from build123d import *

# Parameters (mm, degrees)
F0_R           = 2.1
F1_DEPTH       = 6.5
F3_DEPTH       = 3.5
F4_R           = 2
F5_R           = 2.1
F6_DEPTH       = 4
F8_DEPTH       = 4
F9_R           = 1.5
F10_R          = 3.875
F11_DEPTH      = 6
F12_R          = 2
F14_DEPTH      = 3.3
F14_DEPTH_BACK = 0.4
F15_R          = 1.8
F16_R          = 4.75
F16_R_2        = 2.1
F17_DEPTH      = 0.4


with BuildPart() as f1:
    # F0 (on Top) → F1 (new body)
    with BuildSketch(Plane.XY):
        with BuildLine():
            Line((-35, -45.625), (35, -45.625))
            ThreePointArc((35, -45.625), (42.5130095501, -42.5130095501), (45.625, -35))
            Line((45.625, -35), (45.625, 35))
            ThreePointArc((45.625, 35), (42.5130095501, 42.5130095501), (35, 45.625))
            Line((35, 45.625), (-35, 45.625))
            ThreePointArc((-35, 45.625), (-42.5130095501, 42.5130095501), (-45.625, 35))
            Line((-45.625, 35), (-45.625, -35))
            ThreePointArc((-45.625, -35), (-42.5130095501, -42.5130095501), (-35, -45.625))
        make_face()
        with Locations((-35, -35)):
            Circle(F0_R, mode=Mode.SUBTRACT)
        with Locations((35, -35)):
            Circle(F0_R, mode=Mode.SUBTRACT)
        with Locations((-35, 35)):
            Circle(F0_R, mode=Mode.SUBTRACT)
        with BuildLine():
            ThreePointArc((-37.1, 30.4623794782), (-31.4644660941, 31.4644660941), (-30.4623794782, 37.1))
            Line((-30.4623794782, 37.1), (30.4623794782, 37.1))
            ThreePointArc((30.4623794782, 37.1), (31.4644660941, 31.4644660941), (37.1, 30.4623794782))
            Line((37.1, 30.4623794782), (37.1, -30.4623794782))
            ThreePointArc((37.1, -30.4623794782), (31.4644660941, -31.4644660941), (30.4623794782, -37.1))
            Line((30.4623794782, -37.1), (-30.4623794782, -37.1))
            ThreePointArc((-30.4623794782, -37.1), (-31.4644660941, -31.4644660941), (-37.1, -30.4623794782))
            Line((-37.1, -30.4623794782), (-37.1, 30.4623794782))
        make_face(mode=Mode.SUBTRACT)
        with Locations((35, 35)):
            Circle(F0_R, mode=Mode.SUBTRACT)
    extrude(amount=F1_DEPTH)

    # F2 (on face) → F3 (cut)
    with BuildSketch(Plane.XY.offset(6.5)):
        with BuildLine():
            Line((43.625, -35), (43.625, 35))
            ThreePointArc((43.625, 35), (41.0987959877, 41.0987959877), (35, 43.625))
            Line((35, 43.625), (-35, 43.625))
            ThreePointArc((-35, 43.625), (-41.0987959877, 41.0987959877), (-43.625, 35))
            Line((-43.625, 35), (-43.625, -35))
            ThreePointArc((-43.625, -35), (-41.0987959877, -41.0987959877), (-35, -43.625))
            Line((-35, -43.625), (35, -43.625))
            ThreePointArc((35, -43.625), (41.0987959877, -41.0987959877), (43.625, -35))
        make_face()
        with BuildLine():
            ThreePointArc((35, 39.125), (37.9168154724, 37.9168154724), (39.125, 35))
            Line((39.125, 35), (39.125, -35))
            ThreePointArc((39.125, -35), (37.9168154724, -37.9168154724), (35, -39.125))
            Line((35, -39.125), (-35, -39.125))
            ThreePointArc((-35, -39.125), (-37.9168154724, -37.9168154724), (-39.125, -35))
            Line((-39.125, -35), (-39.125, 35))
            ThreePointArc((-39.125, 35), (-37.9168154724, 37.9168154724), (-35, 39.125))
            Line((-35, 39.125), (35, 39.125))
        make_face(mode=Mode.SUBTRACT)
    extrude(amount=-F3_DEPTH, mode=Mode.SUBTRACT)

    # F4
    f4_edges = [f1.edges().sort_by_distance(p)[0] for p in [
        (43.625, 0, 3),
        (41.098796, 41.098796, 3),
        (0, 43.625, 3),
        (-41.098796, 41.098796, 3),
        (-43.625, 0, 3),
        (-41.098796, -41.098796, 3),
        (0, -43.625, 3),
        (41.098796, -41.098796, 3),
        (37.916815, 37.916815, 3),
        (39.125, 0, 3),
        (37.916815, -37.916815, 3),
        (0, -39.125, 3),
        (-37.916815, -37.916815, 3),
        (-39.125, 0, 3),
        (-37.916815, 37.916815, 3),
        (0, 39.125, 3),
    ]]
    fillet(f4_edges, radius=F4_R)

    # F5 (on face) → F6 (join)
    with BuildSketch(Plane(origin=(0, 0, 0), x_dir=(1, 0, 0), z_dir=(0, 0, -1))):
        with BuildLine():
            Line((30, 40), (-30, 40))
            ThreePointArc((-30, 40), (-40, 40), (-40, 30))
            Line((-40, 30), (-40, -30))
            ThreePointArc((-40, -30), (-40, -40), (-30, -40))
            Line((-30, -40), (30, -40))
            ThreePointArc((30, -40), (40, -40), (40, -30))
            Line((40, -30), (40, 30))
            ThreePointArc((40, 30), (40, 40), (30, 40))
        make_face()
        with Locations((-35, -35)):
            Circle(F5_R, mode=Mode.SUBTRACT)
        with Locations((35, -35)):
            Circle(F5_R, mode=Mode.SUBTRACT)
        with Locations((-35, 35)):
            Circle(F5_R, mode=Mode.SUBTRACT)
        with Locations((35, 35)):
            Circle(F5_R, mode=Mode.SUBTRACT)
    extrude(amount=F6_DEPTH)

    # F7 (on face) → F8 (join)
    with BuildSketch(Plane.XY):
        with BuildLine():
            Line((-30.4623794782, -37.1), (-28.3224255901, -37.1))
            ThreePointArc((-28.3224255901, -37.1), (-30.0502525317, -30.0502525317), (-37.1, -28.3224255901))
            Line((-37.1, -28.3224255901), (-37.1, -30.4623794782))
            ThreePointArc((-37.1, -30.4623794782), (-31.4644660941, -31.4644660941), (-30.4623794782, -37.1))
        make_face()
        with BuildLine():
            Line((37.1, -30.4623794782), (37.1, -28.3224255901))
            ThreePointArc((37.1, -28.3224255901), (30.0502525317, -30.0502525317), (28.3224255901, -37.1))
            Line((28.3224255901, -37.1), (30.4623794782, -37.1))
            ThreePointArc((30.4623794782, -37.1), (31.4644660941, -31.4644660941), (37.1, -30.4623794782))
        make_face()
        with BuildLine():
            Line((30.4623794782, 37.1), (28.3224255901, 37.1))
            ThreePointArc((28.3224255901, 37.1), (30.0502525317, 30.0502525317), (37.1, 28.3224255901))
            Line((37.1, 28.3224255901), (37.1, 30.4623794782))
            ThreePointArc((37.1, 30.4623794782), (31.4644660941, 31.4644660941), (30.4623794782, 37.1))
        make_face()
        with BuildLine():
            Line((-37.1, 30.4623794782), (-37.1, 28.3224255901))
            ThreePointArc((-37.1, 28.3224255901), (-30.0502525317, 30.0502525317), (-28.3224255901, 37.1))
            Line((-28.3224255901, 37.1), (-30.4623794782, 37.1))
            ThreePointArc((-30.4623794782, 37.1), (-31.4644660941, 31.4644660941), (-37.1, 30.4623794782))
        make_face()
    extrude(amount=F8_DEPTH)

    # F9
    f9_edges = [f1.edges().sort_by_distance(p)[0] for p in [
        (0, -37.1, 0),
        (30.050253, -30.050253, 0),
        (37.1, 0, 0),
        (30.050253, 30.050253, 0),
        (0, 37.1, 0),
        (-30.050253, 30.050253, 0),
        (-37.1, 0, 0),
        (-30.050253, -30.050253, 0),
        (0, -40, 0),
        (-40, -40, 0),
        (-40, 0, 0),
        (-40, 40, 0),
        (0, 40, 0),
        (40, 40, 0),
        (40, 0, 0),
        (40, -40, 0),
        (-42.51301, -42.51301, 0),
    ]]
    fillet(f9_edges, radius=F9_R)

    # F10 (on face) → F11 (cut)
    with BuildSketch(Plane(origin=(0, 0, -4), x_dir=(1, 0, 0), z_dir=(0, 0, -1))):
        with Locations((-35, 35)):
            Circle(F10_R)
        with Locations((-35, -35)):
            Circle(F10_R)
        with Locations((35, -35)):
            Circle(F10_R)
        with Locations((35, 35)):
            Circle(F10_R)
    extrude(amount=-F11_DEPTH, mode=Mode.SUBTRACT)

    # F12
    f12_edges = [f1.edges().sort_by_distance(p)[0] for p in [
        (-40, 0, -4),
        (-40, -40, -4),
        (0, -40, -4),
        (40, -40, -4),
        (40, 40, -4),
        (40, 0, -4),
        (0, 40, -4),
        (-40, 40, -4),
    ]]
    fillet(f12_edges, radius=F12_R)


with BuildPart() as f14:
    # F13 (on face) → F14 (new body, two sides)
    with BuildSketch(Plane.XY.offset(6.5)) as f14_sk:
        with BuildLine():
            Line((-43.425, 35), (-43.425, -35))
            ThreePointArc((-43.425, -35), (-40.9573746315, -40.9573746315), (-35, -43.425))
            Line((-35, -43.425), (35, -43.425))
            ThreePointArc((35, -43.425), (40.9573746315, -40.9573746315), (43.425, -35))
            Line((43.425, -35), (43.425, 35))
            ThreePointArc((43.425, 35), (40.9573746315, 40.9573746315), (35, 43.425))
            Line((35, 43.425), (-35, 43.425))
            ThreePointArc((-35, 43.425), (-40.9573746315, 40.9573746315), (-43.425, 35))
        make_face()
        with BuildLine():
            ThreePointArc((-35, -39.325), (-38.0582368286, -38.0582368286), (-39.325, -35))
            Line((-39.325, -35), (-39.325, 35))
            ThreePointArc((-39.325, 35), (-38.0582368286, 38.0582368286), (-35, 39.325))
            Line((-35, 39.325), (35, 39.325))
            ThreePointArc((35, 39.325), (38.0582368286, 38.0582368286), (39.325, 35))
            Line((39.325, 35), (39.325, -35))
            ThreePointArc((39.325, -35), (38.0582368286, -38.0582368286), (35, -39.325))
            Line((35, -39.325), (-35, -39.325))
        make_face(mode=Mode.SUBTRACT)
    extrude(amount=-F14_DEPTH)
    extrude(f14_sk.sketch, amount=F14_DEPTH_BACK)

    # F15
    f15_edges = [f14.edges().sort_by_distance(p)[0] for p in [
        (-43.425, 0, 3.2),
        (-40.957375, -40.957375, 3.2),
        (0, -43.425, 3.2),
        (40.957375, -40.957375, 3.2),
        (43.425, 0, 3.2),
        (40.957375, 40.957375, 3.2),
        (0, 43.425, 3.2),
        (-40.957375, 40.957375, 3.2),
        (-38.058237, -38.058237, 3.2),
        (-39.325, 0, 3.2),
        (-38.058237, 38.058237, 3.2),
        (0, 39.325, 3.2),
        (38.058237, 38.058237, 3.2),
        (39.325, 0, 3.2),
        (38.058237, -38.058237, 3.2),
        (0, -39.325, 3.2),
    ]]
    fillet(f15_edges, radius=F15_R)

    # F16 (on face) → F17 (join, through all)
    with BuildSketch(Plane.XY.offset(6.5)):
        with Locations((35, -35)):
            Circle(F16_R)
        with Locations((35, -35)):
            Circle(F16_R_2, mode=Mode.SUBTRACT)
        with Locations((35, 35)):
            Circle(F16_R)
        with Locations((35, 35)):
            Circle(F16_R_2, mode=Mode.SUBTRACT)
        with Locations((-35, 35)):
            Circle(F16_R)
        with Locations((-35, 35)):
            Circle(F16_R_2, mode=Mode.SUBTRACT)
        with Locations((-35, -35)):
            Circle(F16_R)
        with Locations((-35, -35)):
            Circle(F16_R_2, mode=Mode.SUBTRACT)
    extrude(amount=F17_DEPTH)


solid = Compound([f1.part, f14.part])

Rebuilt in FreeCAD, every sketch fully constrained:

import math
import FreeCAD as App
import Part
import Sketcher
from FreeCAD import Vector


def edges_at(feature, points):
    """Names of the edges that pass closest to the given points."""
    edges = feature.Shape.Edges
    near = lambda p: min(range(len(edges)), key=lambda i: edges[i].distToShape(Part.Vertex(*p))[0])
    return sorted({f"Edge{near(p) + 1}" for p in points})

doc = App.newDocument("Part")
body = doc.addObject("PartDesign::Body", "Body")

sketch1 = doc.addObject("Sketcher::SketchObject", "Sketch")
body.addObject(sketch1)
sketch1.AttachmentSupport = (doc.XY_Plane, [""])
sketch1.MapMode = "FlatFace"
sketch1.addGeometry([
    Part.LineSegment(Vector(-35, -45.6, 0), Vector(35, -45.6, 0)),
    Part.ArcOfCircle(Part.Circle(Vector(35, -35, 0), Vector(0, 0, 1), 10.6), math.radians(-90), math.radians(0)),
    Part.LineSegment(Vector(45.6, -35, 0), Vector(45.6, 35, 0)),
    Part.ArcOfCircle(Part.Circle(Vector(35, 35, 0), Vector(0, 0, 1), 10.6), math.radians(0), math.radians(90)),
    Part.LineSegment(Vector(35, 45.6, 0), Vector(-35, 45.6, 0)),
    Part.ArcOfCircle(Part.Circle(Vector(-35, 35, 0), Vector(0, 0, 1), 10.6), math.radians(90), math.radians(180)),
    Part.LineSegment(Vector(-45.6, 35, 0), Vector(-45.6, -35, 0)),
    Part.ArcOfCircle(Part.Circle(Vector(-35, -35, 0), Vector(0, 0, 1), 10.6), math.radians(180), math.radians(270)),
    Part.Circle(Vector(-35, -35, 0), Vector(0, 0, 1), 2.1),
    Part.Circle(Vector(35, -35, 0), Vector(0, 0, 1), 2.1),
    Part.Circle(Vector(-35, 35, 0), Vector(0, 0, 1), 2.1),
    Part.LineSegment(Vector(-37.1, -30.5, 0), Vector(-37.1, 30.5, 0)),
    Part.ArcOfCircle(Part.Circle(Vector(-35, 35, 0), Vector(0, 0, 1), 5), math.radians(-115), math.radians(25)),
    Part.LineSegment(Vector(-30.5, 37.1, 0), Vector(30.5, 37.1, 0)),
    Part.ArcOfCircle(Part.Circle(Vector(35, 35, 0), Vector(0, 0, 1), 5), math.radians(155), math.radians(295)),
    Part.LineSegment(Vector(37.1, 30.5, 0), Vector(37.1, -30.5, 0)),
    Part.ArcOfCircle(Part.Circle(Vector(35, -35, 0), Vector(0, 0, 1), 5), math.radians(65), math.radians(205)),
    Part.LineSegment(Vector(30.5, -37.1, 0), Vector(-30.5, -37.1, 0)),
    Part.ArcOfCircle(Part.Circle(Vector(-35, -35, 0), Vector(0, 0, 1), 5), math.radians(-25), math.radians(115)),
    Part.Circle(Vector(35, 35, 0), Vector(0, 0, 1), 2.1),
], False)
sketch1.addConstraint([
    Sketcher.Constraint("Tangent", 0, 2, 1, 1),
    Sketcher.Constraint("Tangent", 1, 2, 2, 1),
    Sketcher.Constraint("Tangent", 2, 2, 3, 1),
    Sketcher.Constraint("Tangent", 3, 2, 4, 1),
    Sketcher.Constraint("Tangent", 4, 2, 5, 1),
    Sketcher.Constraint("Tangent", 5, 2, 6, 1),
    Sketcher.Constraint("Tangent", 6, 2, 7, 1),
    Sketcher.Constraint("Tangent", 7, 2, 0, 1),
    Sketcher.Constraint("Coincident", 11, 2, 12, 1),
    Sketcher.Constraint("Coincident", 12, 2, 13, 1),
    Sketcher.Constraint("Coincident", 13, 2, 14, 1),
    Sketcher.Constraint("Coincident", 14, 2, 15, 1),
    Sketcher.Constraint("Coincident", 15, 2, 16, 1),
    Sketcher.Constraint("Coincident", 16, 2, 17, 1),
    Sketcher.Constraint("Coincident", 17, 2, 18, 1),
    Sketcher.Constraint("Coincident", 18, 2, 11, 1),
    Sketcher.Constraint("Horizontal", 0),
    Sketcher.Constraint("Vertical", 2),
    Sketcher.Constraint("Horizontal", 4),
    Sketcher.Constraint("Vertical", 6),
    Sketcher.Constraint("Vertical", 11),
    Sketcher.Constraint("Horizontal", 13),
    Sketcher.Constraint("Vertical", 15),
    Sketcher.Constraint("Horizontal", 17),
    Sketcher.Constraint("Coincident", 8, 3, 7, 3),
    Sketcher.Constraint("Coincident", 9, 3, 1, 3),
    Sketcher.Constraint("Coincident", 10, 3, 5, 3),
    Sketcher.Constraint("Coincident", 12, 3, 5, 3),
    Sketcher.Constraint("Coincident", 14, 3, 3, 3),
    Sketcher.Constraint("Coincident", 16, 3, 1, 3),
    Sketcher.Constraint("Coincident", 18, 3, 7, 3),
    Sketcher.Constraint("Coincident", 19, 3, 3, 3),
    Sketcher.Constraint("Equal", 1, 3),
    Sketcher.Constraint("Equal", 3, 5),
    Sketcher.Constraint("Equal", 5, 7),
    Sketcher.Constraint("Equal", 8, 9),
    Sketcher.Constraint("Equal", 9, 10),
    Sketcher.Constraint("Equal", 12, 14),
    Sketcher.Constraint("Equal", 14, 16),
    Sketcher.Constraint("Equal", 16, 18),
    Sketcher.Constraint("Equal", 10, 19),
    Sketcher.Constraint("Symmetric", 1, 3, 5, 3, -1, 1),
    Sketcher.Constraint("Horizontal", 11, 2, 14, 2),
    Sketcher.Constraint("Vertical", 13, 2, 16, 2),
    Sketcher.Constraint("Equal", 4, 2),
    Sketcher.Constraint("Equal", 17, 11),
    Sketcher.Constraint("Radius", 12, 5.0),
    Sketcher.Constraint("Diameter", 8, 4.2),
    Sketcher.Constraint("DistanceX", 0, 1, 0, 2, 70.0),
    Sketcher.Constraint("Radius", 1, 10.625),
    Sketcher.Constraint("DistanceX", 11, 2, -1, 1, 37.1),
])
pad1 = doc.addObject("PartDesign::Pad", "Pad")
body.addObject(pad1)
pad1.Profile = sketch1
pad1.Length = 6.5

sketch2 = doc.addObject("Sketcher::SketchObject", "Sketch001")
body.addObject(sketch2)
sketch2.AttachmentSupport = (doc.XY_Plane, [""])
sketch2.MapMode = "FlatFace"
sketch2.AttachmentOffset = App.Placement(Vector(0, 0, 6.5), App.Rotation())
sketch2.addGeometry([
    Part.LineSegment(Vector(43.6, -35, 0), Vector(43.6, 35, 0)),
    Part.ArcOfCircle(Part.Circle(Vector(35, 35, 0), Vector(0, 0, 1), 8.6), math.radians(0), math.radians(90)),
    Part.LineSegment(Vector(35, 43.6, 0), Vector(-35, 43.6, 0)),
    Part.ArcOfCircle(Part.Circle(Vector(-35, 35, 0), Vector(0, 0, 1), 8.6), math.radians(90), math.radians(180)),
    Part.LineSegment(Vector(-43.6, 35, 0), Vector(-43.6, -35, 0)),
    Part.ArcOfCircle(Part.Circle(Vector(-35, -35, 0), Vector(0, 0, 1), 8.6), math.radians(180), math.radians(270)),
    Part.LineSegment(Vector(-35, -43.6, 0), Vector(35, -43.6, 0)),
    Part.ArcOfCircle(Part.Circle(Vector(35, -35, 0), Vector(0, 0, 1), 8.6), math.radians(-90), math.radians(0)),
    Part.LineSegment(Vector(-35, 39.1, 0), Vector(35, 39.1, 0)),
    Part.ArcOfCircle(Part.Circle(Vector(35, 35, 0), Vector(0, 0, 1), 4.1), math.radians(0), math.radians(90)),
    Part.LineSegment(Vector(39.1, 35, 0), Vector(39.1, -35, 0)),
    Part.ArcOfCircle(Part.Circle(Vector(35, -35, 0), Vector(0, 0, 1), 4.1), math.radians(-90), math.radians(0)),
    Part.LineSegment(Vector(35, -39.1, 0), Vector(-35, -39.1, 0)),
    Part.ArcOfCircle(Part.Circle(Vector(-35, -35, 0), Vector(0, 0, 1), 4.1), math.radians(180), math.radians(270)),
    Part.LineSegment(Vector(-39.1, -35, 0), Vector(-39.1, 35, 0)),
    Part.ArcOfCircle(Part.Circle(Vector(-35, 35, 0), Vector(0, 0, 1), 4.1), math.radians(90), math.radians(180)),
], False)
sketch2.addConstraint([
    Sketcher.Constraint("Tangent", 0, 2, 1, 1),
    Sketcher.Constraint("Tangent", 1, 2, 2, 1),
    Sketcher.Constraint("Tangent", 2, 2, 3, 1),
    Sketcher.Constraint("Tangent", 3, 2, 4, 1),
    Sketcher.Constraint("Tangent", 4, 2, 5, 1),
    Sketcher.Constraint("Tangent", 5, 2, 6, 1),
    Sketcher.Constraint("Tangent", 6, 2, 7, 1),
    Sketcher.Constraint("Tangent", 7, 2, 0, 1),
    Sketcher.Constraint("Tangent", 8, 2, 9, 2),
    Sketcher.Constraint("Tangent", 9, 1, 10, 1),
    Sketcher.Constraint("Tangent", 10, 2, 11, 2),
    Sketcher.Constraint("Tangent", 11, 1, 12, 1),
    Sketcher.Constraint("Tangent", 12, 2, 13, 2),
    Sketcher.Constraint("Tangent", 13, 1, 14, 1),
    Sketcher.Constraint("Tangent", 14, 2, 15, 2),
    Sketcher.Constraint("Tangent", 15, 1, 8, 1),
    Sketcher.Constraint("Vertical", 0),
    Sketcher.Constraint("Horizontal", 2),
    Sketcher.Constraint("Vertical", 4),
    Sketcher.Constraint("Horizontal", 6),
    Sketcher.Constraint("Horizontal", 8),
    Sketcher.Constraint("Vertical", 10),
    Sketcher.Constraint("Horizontal", 12),
    Sketcher.Constraint("Vertical", 14),
    Sketcher.Constraint("Coincident", 9, 3, 1, 3),
    Sketcher.Constraint("Coincident", 11, 3, 7, 3),
    Sketcher.Constraint("Coincident", 13, 3, 5, 3),
    Sketcher.Constraint("Equal", 1, 3),
    Sketcher.Constraint("Equal", 3, 5),
    Sketcher.Constraint("Equal", 5, 7),
    Sketcher.Constraint("Equal", 13, 15),
    Sketcher.Constraint("Symmetric", 1, 3, 5, 3, -1, 1),
    Sketcher.Constraint("Equal", 12, 0),
    Sketcher.Constraint("DistanceX", 2, 2, 2, 1, 70.0),
    Sketcher.Constraint("Radius", 1, 8.625),
    Sketcher.Constraint("Radius", 9, 4.125),
])
pocket1 = doc.addObject("PartDesign::Pocket", "Pocket")
body.addObject(pocket1)
pocket1.Profile = sketch2
pocket1.Length = 3.5
doc.recompute()

fillet = doc.addObject("PartDesign::Fillet", "Fillet")
body.addObject(fillet)
fillet.Base = (pocket1, edges_at(pocket1, [
    (43.625, 0, 3),
    (41.099, 41.099, 3),
    (0, 43.625, 3),
    (-41.099, 41.099, 3),
    (-43.625, 0, 3),
    (-41.099, -41.099, 3),
    (0, -43.625, 3),
    (41.099, -41.099, 3),
    (37.917, 37.917, 3),
    (39.125, 0, 3),
    (37.917, -37.917, 3),
    (0, -39.125, 3),
    (-37.917, -37.917, 3),
    (-39.125, 0, 3),
    (-37.917, 37.917, 3),
    (0, 39.125, 3),
]))
fillet.Radius = 2

sketch3 = doc.addObject("Sketcher::SketchObject", "Sketch002")
body.addObject(sketch3)
sketch3.AttachmentSupport = (doc.XY_Plane, [""])
sketch3.MapMode = "FlatFace"
sketch3.addGeometry([
    Part.LineSegment(Vector(30, -40, 0), Vector(-30, -40, 0)),
    Part.ArcOfCircle(Part.Circle(Vector(-35, -35, 0), Vector(0, 0, 1), 7.1), math.radians(135), math.radians(315)),
    Part.LineSegment(Vector(-40, -30, 0), Vector(-40, 30, 0)),
    Part.ArcOfCircle(Part.Circle(Vector(-35, 35, 0), Vector(0, 0, 1), 7.1), math.radians(45), math.radians(225)),
    Part.LineSegment(Vector(-30, 40, 0), Vector(30, 40, 0)),
    Part.ArcOfCircle(Part.Circle(Vector(35, 35, 0), Vector(0, 0, 1), 7.1), math.radians(-45), math.radians(135)),
    Part.LineSegment(Vector(40, 30, 0), Vector(40, -30, 0)),
    Part.ArcOfCircle(Part.Circle(Vector(35, -35, 0), Vector(0, 0, 1), 7.1), math.radians(-135), math.radians(45)),
    Part.Circle(Vector(-35, 35, 0), Vector(0, 0, 1), 2.1),
    Part.Circle(Vector(35, 35, 0), Vector(0, 0, 1), 2.1),
    Part.Circle(Vector(-35, -35, 0), Vector(0, 0, 1), 2.1),
    Part.Circle(Vector(35, -35, 0), Vector(0, 0, 1), 2.1),
], False)
sketch3.addConstraint([
    Sketcher.Constraint("Coincident", 0, 2, 1, 2),
    Sketcher.Constraint("Coincident", 1, 1, 2, 1),
    Sketcher.Constraint("Coincident", 2, 2, 3, 2),
    Sketcher.Constraint("Coincident", 3, 1, 4, 1),
    Sketcher.Constraint("Coincident", 4, 2, 5, 2),
    Sketcher.Constraint("Coincident", 5, 1, 6, 1),
    Sketcher.Constraint("Coincident", 6, 2, 7, 2),
    Sketcher.Constraint("Coincident", 7, 1, 0, 1),
    Sketcher.Constraint("Horizontal", 0),
    Sketcher.Constraint("Vertical", 2),
    Sketcher.Constraint("Horizontal", 4),
    Sketcher.Constraint("Vertical", 6),
    Sketcher.Constraint("Coincident", 8, 3, 3, 3),
    Sketcher.Constraint("Coincident", 9, 3, 5, 3),
    Sketcher.Constraint("Coincident", 10, 3, 1, 3),
    Sketcher.Constraint("Coincident", 11, 3, 7, 3),
    Sketcher.Constraint("Equal", 1, 3),
    Sketcher.Constraint("Equal", 3, 5),
    Sketcher.Constraint("Equal", 5, 7),
    Sketcher.Constraint("Equal", 8, 9),
    Sketcher.Constraint("Equal", 9, 10),
    Sketcher.Constraint("Equal", 10, 11),
    Sketcher.Constraint("Symmetric", 1, 3, 5, 3, -1, 1),
    Sketcher.Constraint("Symmetric", 3, 3, 7, 3, -1, 1),
    Sketcher.Constraint("Symmetric", 3, 3, 5, 3, -2),
    Sketcher.Constraint("Horizontal", 2, 2, 5, 1),
    Sketcher.Constraint("Vertical", 0, 2, 3, 1),
    Sketcher.Constraint("Equal", 4, 2),
    Sketcher.Constraint("Diameter", 8, 4.2),
    Sketcher.Constraint("DistanceX", 0, 2, 0, 1, 60.0),
    Sketcher.Constraint("DistanceX", 1, 3, -1, 1, 35.0),
    Sketcher.Constraint("DistanceY", 1, 3, -1, 1, 35.0),
    Sketcher.Constraint("DistanceY", 0, 2, -1, 1, 40.0),
])
pad2 = doc.addObject("PartDesign::Pad", "Pad001")
body.addObject(pad2)
pad2.Profile = sketch3
pad2.Length = 4
pad2.Reversed = True

sketch4 = doc.addObject("Sketcher::SketchObject", "Sketch003")
body.addObject(sketch4)
sketch4.AttachmentSupport = (doc.XY_Plane, [""])
sketch4.MapMode = "FlatFace"
sketch4.addGeometry([
    Part.LineSegment(Vector(-30.5, -37.1, 0), Vector(-28.3, -37.1, 0)),
    Part.ArcOfCircle(Part.Circle(Vector(-35, -35, 0), Vector(0, 0, 1), 7), math.radians(-17), math.radians(107)),
    Part.LineSegment(Vector(-37.1, -28.3, 0), Vector(-37.1, -30.5, 0)),
    Part.ArcOfCircle(Part.Circle(Vector(-35, -35, 0), Vector(0, 0, 1), 5), math.radians(-25), math.radians(115)),
    Part.LineSegment(Vector(37.1, -30.5, 0), Vector(37.1, -28.3, 0)),
    Part.ArcOfCircle(Part.Circle(Vector(35, -35, 0), Vector(0, 0, 1), 7), math.radians(73), math.radians(197)),
    Part.LineSegment(Vector(28.3, -37.1, 0), Vector(30.5, -37.1, 0)),
    Part.ArcOfCircle(Part.Circle(Vector(35, -35, 0), Vector(0, 0, 1), 5), math.radians(65), math.radians(205)),
    Part.LineSegment(Vector(30.5, 37.1, 0), Vector(28.3, 37.1, 0)),
    Part.ArcOfCircle(Part.Circle(Vector(35, 35, 0), Vector(0, 0, 1), 7), math.radians(163), math.radians(287)),
    Part.LineSegment(Vector(37.1, 28.3, 0), Vector(37.1, 30.5, 0)),
    Part.ArcOfCircle(Part.Circle(Vector(35, 35, 0), Vector(0, 0, 1), 5), math.radians(155), math.radians(295)),
    Part.LineSegment(Vector(-37.1, 30.5, 0), Vector(-37.1, 28.3, 0)),
    Part.ArcOfCircle(Part.Circle(Vector(-35, 35, 0), Vector(0, 0, 1), 7), math.radians(-107), math.radians(17)),
    Part.LineSegment(Vector(-28.3, 37.1, 0), Vector(-30.5, 37.1, 0)),
    Part.ArcOfCircle(Part.Circle(Vector(-35, 35, 0), Vector(0, 0, 1), 5), math.radians(-115), math.radians(25)),
], False)
sketch4.addConstraint([
    Sketcher.Constraint("Coincident", 0, 2, 1, 1),
    Sketcher.Constraint("Coincident", 1, 2, 2, 1),
    Sketcher.Constraint("Coincident", 2, 2, 3, 2),
    Sketcher.Constraint("Coincident", 3, 1, 0, 1),
    Sketcher.Constraint("Coincident", 4, 2, 5, 1),
    Sketcher.Constraint("Coincident", 5, 2, 6, 1),
    Sketcher.Constraint("Coincident", 6, 2, 7, 2),
    Sketcher.Constraint("Coincident", 7, 1, 4, 1),
    Sketcher.Constraint("Coincident", 8, 2, 9, 1),
    Sketcher.Constraint("Coincident", 9, 2, 10, 1),
    Sketcher.Constraint("Coincident", 10, 2, 11, 2),
    Sketcher.Constraint("Coincident", 11, 1, 8, 1),
    Sketcher.Constraint("Coincident", 12, 2, 13, 1),
    Sketcher.Constraint("Coincident", 13, 2, 14, 1),
    Sketcher.Constraint("Coincident", 14, 2, 15, 2),
    Sketcher.Constraint("Coincident", 15, 1, 12, 1),
    Sketcher.Constraint("Horizontal", 0),
    Sketcher.Constraint("Vertical", 2),
    Sketcher.Constraint("Vertical", 4),
    Sketcher.Constraint("Horizontal", 6),
    Sketcher.Constraint("Horizontal", 8),
    Sketcher.Constraint("Vertical", 10),
    Sketcher.Constraint("Vertical", 12),
    Sketcher.Constraint("Horizontal", 14),
    Sketcher.Constraint("Coincident", 3, 3, 1, 3),
    Sketcher.Constraint("Coincident", 7, 3, 5, 3),
    Sketcher.Constraint("Coincident", 11, 3, 9, 3),
    Sketcher.Constraint("Coincident", 15, 3, 13, 3),
    Sketcher.Constraint("Equal", 1, 5),
    Sketcher.Constraint("Equal", 3, 7),
    Sketcher.Constraint("Equal", 5, 9),
    Sketcher.Constraint("Equal", 7, 11),
    Sketcher.Constraint("Equal", 9, 13),
    Sketcher.Constraint("Equal", 11, 15),
    Sketcher.Constraint("Symmetric", 1, 3, 9, 3, -1, 1),
    Sketcher.Constraint("Symmetric", 5, 3, 13, 3, -1, 1),
    Sketcher.Constraint("Symmetric", 1, 3, 5, 3, -2),
    Sketcher.Constraint("Horizontal", 1, 2, 4, 2),
    Sketcher.Constraint("Horizontal", 3, 1, 5, 2),
    Sketcher.Constraint("Horizontal", 9, 2, 12, 2),
    Sketcher.Constraint("Horizontal", 11, 1, 13, 2),
    Sketcher.Constraint("Vertical", 5, 2, 8, 2),
    Sketcher.Constraint("Vertical", 7, 1, 9, 2),
    Sketcher.Constraint("Equal", 14, 2),
    Sketcher.Constraint("Radius", 1, 7.0),
    Sketcher.Constraint("Radius", 3, 5.0),
    Sketcher.Constraint("DistanceX", 1, 3, -1, 1, 35.0),
    Sketcher.Constraint("DistanceY", 1, 3, -1, 1, 35.0),
    Sketcher.Constraint("DistanceY", 0, 2, -1, 1, 37.1),
])
pad3 = doc.addObject("PartDesign::Pad", "Pad002")
body.addObject(pad3)
pad3.Profile = sketch4
pad3.Length = 4
doc.recompute()

fillet2 = doc.addObject("PartDesign::Fillet", "Fillet001")
body.addObject(fillet2)
fillet2.Base = (pad3, edges_at(pad3, [
    (0, -37.1, 0),
    (30.05, -30.05, 0),
    (37.1, 0, 0),
    (30.05, 30.05, 0),
    (0, 37.1, 0),
    (-30.05, 30.05, 0),
    (-37.1, 0, 0),
    (-30.05, -30.05, 0),
    (0, -40, 0),
    (-40, -40, 0),
    (-40, 0, 0),
    (-40, 40, 0),
    (0, 40, 0),
    (40, 40, 0),
    (40, 0, 0),
    (40, -40, 0),
    (-42.513, -42.513, 0),
]))
fillet2.Radius = 1.5

sketch5 = doc.addObject("Sketcher::SketchObject", "Sketch004")
body.addObject(sketch5)
sketch5.AttachmentSupport = (doc.XY_Plane, [""])
sketch5.MapMode = "FlatFace"
sketch5.AttachmentOffset = App.Placement(Vector(0, 0, -4), App.Rotation())
sketch5.addGeometry([
    Part.Circle(Vector(-35, -35, 0), Vector(0, 0, 1), 3.9),
    Part.Circle(Vector(-35, 35, 0), Vector(0, 0, 1), 3.9),
    Part.Circle(Vector(35, 35, 0), Vector(0, 0, 1), 3.9),
    Part.Circle(Vector(35, -35, 0), Vector(0, 0, 1), 3.9),
], False)
sketch5.addConstraint([
    Sketcher.Constraint("Equal", 0, 1),
    Sketcher.Constraint("Equal", 1, 2),
    Sketcher.Constraint("Equal", 2, 3),
    Sketcher.Constraint("Symmetric", 0, 3, 2, 3, -1, 1),
    Sketcher.Constraint("Symmetric", 1, 3, 3, 3, -1, 1),
    Sketcher.Constraint("Symmetric", 1, 3, 2, 3, -2),
    Sketcher.Constraint("Diameter", 0, 7.75),
    Sketcher.Constraint("DistanceX", 0, 3, -1, 1, 35.0),
    Sketcher.Constraint("DistanceY", 0, 3, -1, 1, 35.0),
])
pocket2 = doc.addObject("PartDesign::Pocket", "Pocket001")
body.addObject(pocket2)
pocket2.Profile = sketch5
pocket2.Length = 6
pocket2.Reversed = True
doc.recompute()

fillet3 = doc.addObject("PartDesign::Fillet", "Fillet002")
body.addObject(fillet3)
fillet3.Base = (pocket2, edges_at(pocket2, [
    (-40, 0, -4),
    (-40, -40, -4),
    (0, -40, -4),
    (40, -40, -4),
    (40, 40, -4),
    (40, 0, -4),
    (0, 40, -4),
    (-40, 40, -4),
]))
fillet3.Radius = 2
body2 = doc.addObject("PartDesign::Body", "Body001")

sketch6 = doc.addObject("Sketcher::SketchObject", "Sketch005")
body2.addObject(sketch6)
sketch6.AttachmentSupport = (doc.getObject("XY_Plane001"), [""])
sketch6.MapMode = "FlatFace"
sketch6.AttachmentOffset = App.Placement(Vector(0, 0, 6.5), App.Rotation())
sketch6.addGeometry([
    Part.LineSegment(Vector(-43.4, 35, 0), Vector(-43.4, -35, 0)),
    Part.ArcOfCircle(Part.Circle(Vector(-35, -35, 0), Vector(0, 0, 1), 8.4), math.radians(180), math.radians(270)),
    Part.LineSegment(Vector(-35, -43.4, 0), Vector(35, -43.4, 0)),
    Part.ArcOfCircle(Part.Circle(Vector(35, -35, 0), Vector(0, 0, 1), 8.4), math.radians(-90), math.radians(0)),
    Part.LineSegment(Vector(43.4, -35, 0), Vector(43.4, 35, 0)),
    Part.ArcOfCircle(Part.Circle(Vector(35, 35, 0), Vector(0, 0, 1), 8.4), math.radians(0), math.radians(90)),
    Part.LineSegment(Vector(35, 43.4, 0), Vector(-35, 43.4, 0)),
    Part.ArcOfCircle(Part.Circle(Vector(-35, 35, 0), Vector(0, 0, 1), 8.4), math.radians(90), math.radians(180)),
    Part.LineSegment(Vector(35, -39.3, 0), Vector(-35, -39.3, 0)),
    Part.ArcOfCircle(Part.Circle(Vector(-35, -35, 0), Vector(0, 0, 1), 4.3), math.radians(180), math.radians(270)),
    Part.LineSegment(Vector(-39.3, -35, 0), Vector(-39.3, 35, 0)),
    Part.ArcOfCircle(Part.Circle(Vector(-35, 35, 0), Vector(0, 0, 1), 4.3), math.radians(90), math.radians(180)),
    Part.LineSegment(Vector(-35, 39.3, 0), Vector(35, 39.3, 0)),
    Part.ArcOfCircle(Part.Circle(Vector(35, 35, 0), Vector(0, 0, 1), 4.3), math.radians(0), math.radians(90)),
    Part.LineSegment(Vector(39.3, 35, 0), Vector(39.3, -35, 0)),
    Part.ArcOfCircle(Part.Circle(Vector(35, -35, 0), Vector(0, 0, 1), 4.3), math.radians(-90), math.radians(0)),
], False)
sketch6.addConstraint([
    Sketcher.Constraint("Tangent", 0, 2, 1, 1),
    Sketcher.Constraint("Tangent", 1, 2, 2, 1),
    Sketcher.Constraint("Tangent", 2, 2, 3, 1),
    Sketcher.Constraint("Tangent", 3, 2, 4, 1),
    Sketcher.Constraint("Tangent", 4, 2, 5, 1),
    Sketcher.Constraint("Tangent", 5, 2, 6, 1),
    Sketcher.Constraint("Tangent", 6, 2, 7, 1),
    Sketcher.Constraint("Tangent", 7, 2, 0, 1),
    Sketcher.Constraint("Tangent", 8, 2, 9, 2),
    Sketcher.Constraint("Tangent", 9, 1, 10, 1),
    Sketcher.Constraint("Tangent", 10, 2, 11, 2),
    Sketcher.Constraint("Tangent", 11, 1, 12, 1),
    Sketcher.Constraint("Tangent", 12, 2, 13, 2),
    Sketcher.Constraint("Tangent", 13, 1, 14, 1),
    Sketcher.Constraint("Tangent", 14, 2, 15, 2),
    Sketcher.Constraint("Tangent", 15, 1, 8, 1),
    Sketcher.Constraint("Vertical", 0),
    Sketcher.Constraint("Horizontal", 2),
    Sketcher.Constraint("Vertical", 4),
    Sketcher.Constraint("Horizontal", 6),
    Sketcher.Constraint("Horizontal", 8),
    Sketcher.Constraint("Vertical", 10),
    Sketcher.Constraint("Horizontal", 12),
    Sketcher.Constraint("Vertical", 14),
    Sketcher.Constraint("Coincident", 9, 3, 1, 3),
    Sketcher.Constraint("Coincident", 11, 3, 7, 3),
    Sketcher.Constraint("Coincident", 13, 3, 5, 3),
    Sketcher.Constraint("Equal", 1, 3),
    Sketcher.Constraint("Equal", 3, 5),
    Sketcher.Constraint("Equal", 5, 7),
    Sketcher.Constraint("Equal", 13, 15),
    Sketcher.Constraint("Symmetric", 1, 3, 5, 3, -1, 1),
    Sketcher.Constraint("Equal", 12, 0),
    Sketcher.Constraint("DistanceX", 2, 1, 2, 2, 70.0),
    Sketcher.Constraint("Radius", 1, 8.425),
    Sketcher.Constraint("Radius", 9, 4.325),
])
pad4 = doc.addObject("PartDesign::Pad", "Pad003")
body2.addObject(pad4)
pad4.Profile = sketch6
pad4.Type = "TwoLengths"
pad4.Length = 3.3
pad4.Length2 = 0.4
pad4.Reversed = True
doc.recompute()

fillet4 = doc.addObject("PartDesign::Fillet", "Fillet003")
body2.addObject(fillet4)
fillet4.Base = (pad4, edges_at(pad4, [
    (-43.425, 0, 3.2),
    (-40.957, -40.957, 3.2),
    (0, -43.425, 3.2),
    (40.957, -40.957, 3.2),
    (43.425, 0, 3.2),
    (40.957, 40.957, 3.2),
    (0, 43.425, 3.2),
    (-40.957, 40.957, 3.2),
    (-38.058, -38.058, 3.2),
    (-39.325, 0, 3.2),
    (-38.058, 38.058, 3.2),
    (0, 39.325, 3.2),
    (38.058, 38.058, 3.2),
    (39.325, 0, 3.2),
    (38.058, -38.058, 3.2),
    (0, -39.325, 3.2),
]))
fillet4.Radius = 1.8

sketch7 = doc.addObject("Sketcher::SketchObject", "Sketch006")
body2.addObject(sketch7)
sketch7.AttachmentSupport = (doc.getObject("XY_Plane001"), [""])
sketch7.MapMode = "FlatFace"
sketch7.AttachmentOffset = App.Placement(Vector(0, 0, 6.5), App.Rotation())
sketch7.addGeometry([
    Part.Circle(Vector(35, -35, 0), Vector(0, 0, 1), 4.8),
    Part.Circle(Vector(35, -35, 0), Vector(0, 0, 1), 2.1),
    Part.Circle(Vector(35, 35, 0), Vector(0, 0, 1), 4.8),
    Part.Circle(Vector(35, 35, 0), Vector(0, 0, 1), 2.1),
    Part.Circle(Vector(-35, 35, 0), Vector(0, 0, 1), 4.8),
    Part.Circle(Vector(-35, 35, 0), Vector(0, 0, 1), 2.1),
    Part.Circle(Vector(-35, -35, 0), Vector(0, 0, 1), 4.8),
    Part.Circle(Vector(-35, -35, 0), Vector(0, 0, 1), 2.1),
], False)
sketch7.addConstraint([
    Sketcher.Constraint("Coincident", 1, 3, 0, 3),
    Sketcher.Constraint("Coincident", 3, 3, 2, 3),
    Sketcher.Constraint("Coincident", 5, 3, 4, 3),
    Sketcher.Constraint("Coincident", 7, 3, 6, 3),
    Sketcher.Constraint("Equal", 0, 2),
    Sketcher.Constraint("Equal", 1, 3),
    Sketcher.Constraint("Equal", 2, 4),
    Sketcher.Constraint("Equal", 3, 5),
    Sketcher.Constraint("Equal", 4, 6),
    Sketcher.Constraint("Equal", 5, 7),
    Sketcher.Constraint("Symmetric", 0, 3, 4, 3, -1, 1),
    Sketcher.Constraint("Symmetric", 2, 3, 6, 3, -1, 1),
    Sketcher.Constraint("Symmetric", 2, 3, 4, 3, -2),
    Sketcher.Constraint("Diameter", 0, 9.5),
    Sketcher.Constraint("Diameter", 1, 4.2),
    Sketcher.Constraint("DistanceX", -1, 1, 0, 3, 35.0),
    Sketcher.Constraint("DistanceY", 0, 3, -1, 1, 35.0),
])
pad5 = doc.addObject("PartDesign::Pad", "Pad004")
body2.addObject(pad5)
pad5.Profile = sketch7
pad5.Length = 0.4

doc.recompute()
